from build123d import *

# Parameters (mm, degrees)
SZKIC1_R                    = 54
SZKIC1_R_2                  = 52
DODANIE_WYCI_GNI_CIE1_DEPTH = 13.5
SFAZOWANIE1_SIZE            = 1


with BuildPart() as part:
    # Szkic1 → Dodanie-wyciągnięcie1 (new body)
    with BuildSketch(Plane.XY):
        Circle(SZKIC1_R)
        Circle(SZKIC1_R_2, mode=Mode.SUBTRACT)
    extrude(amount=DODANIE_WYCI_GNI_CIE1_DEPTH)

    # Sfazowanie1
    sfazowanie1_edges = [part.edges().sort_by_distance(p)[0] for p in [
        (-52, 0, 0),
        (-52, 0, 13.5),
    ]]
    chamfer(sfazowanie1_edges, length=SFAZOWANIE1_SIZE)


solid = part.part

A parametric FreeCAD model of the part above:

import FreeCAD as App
import Part
import Sketcher

V = App.Vector


def edges_at(feature, points):
    """Names of the edges that pass closest to the given points."""
    edges = feature.Shape.Edges
    near = lambda p: min(range(len(edges)), key=lambda i: edges[i].distToShape(Part.Vertex(*p))[0])
    return sorted({f"Edge{near(p) + 1}" for p in points})

doc = App.newDocument("Part")
body = doc.addObject("PartDesign::Body", "Body")

# Sketch on XY plane
sketch1 = body.newObject("Sketcher::SketchObject", "Sketch")
sketch1.AttachmentSupport = (doc.getObject("XY_Plane"), [""])
sketch1.MapMode = "FlatFace"
sketch1.addGeometry([
    Part.Circle(V(0, 0, 0), V(0, 0, 1), 54),
    Part.Circle(V(0, 0, 0), V(0, 0, 1), 52),
], False)
sketch1.addConstraint([
    Sketcher.Constraint("Coincident", 0, 3, -1, 1),
    Sketcher.Constraint("Coincident", 1, 3, -1, 1),
    Sketcher.Constraint("Diameter", 0, 108.0),
    Sketcher.Constraint("Diameter", 1, 104.0),
])
pad1 = body.newObject("PartDesign::Pad", "Pad")
pad1.Profile = sketch1
pad1.Length = 13.5
doc.recompute()

chamfer = body.newObject("PartDesign::Chamfer", "Chamfer")
chamfer.Base = (pad1, edges_at(pad1, [(-52, 0, 0), (-52, 0, 13.5)]))
chamfer.Size = 1

doc.recompute()
